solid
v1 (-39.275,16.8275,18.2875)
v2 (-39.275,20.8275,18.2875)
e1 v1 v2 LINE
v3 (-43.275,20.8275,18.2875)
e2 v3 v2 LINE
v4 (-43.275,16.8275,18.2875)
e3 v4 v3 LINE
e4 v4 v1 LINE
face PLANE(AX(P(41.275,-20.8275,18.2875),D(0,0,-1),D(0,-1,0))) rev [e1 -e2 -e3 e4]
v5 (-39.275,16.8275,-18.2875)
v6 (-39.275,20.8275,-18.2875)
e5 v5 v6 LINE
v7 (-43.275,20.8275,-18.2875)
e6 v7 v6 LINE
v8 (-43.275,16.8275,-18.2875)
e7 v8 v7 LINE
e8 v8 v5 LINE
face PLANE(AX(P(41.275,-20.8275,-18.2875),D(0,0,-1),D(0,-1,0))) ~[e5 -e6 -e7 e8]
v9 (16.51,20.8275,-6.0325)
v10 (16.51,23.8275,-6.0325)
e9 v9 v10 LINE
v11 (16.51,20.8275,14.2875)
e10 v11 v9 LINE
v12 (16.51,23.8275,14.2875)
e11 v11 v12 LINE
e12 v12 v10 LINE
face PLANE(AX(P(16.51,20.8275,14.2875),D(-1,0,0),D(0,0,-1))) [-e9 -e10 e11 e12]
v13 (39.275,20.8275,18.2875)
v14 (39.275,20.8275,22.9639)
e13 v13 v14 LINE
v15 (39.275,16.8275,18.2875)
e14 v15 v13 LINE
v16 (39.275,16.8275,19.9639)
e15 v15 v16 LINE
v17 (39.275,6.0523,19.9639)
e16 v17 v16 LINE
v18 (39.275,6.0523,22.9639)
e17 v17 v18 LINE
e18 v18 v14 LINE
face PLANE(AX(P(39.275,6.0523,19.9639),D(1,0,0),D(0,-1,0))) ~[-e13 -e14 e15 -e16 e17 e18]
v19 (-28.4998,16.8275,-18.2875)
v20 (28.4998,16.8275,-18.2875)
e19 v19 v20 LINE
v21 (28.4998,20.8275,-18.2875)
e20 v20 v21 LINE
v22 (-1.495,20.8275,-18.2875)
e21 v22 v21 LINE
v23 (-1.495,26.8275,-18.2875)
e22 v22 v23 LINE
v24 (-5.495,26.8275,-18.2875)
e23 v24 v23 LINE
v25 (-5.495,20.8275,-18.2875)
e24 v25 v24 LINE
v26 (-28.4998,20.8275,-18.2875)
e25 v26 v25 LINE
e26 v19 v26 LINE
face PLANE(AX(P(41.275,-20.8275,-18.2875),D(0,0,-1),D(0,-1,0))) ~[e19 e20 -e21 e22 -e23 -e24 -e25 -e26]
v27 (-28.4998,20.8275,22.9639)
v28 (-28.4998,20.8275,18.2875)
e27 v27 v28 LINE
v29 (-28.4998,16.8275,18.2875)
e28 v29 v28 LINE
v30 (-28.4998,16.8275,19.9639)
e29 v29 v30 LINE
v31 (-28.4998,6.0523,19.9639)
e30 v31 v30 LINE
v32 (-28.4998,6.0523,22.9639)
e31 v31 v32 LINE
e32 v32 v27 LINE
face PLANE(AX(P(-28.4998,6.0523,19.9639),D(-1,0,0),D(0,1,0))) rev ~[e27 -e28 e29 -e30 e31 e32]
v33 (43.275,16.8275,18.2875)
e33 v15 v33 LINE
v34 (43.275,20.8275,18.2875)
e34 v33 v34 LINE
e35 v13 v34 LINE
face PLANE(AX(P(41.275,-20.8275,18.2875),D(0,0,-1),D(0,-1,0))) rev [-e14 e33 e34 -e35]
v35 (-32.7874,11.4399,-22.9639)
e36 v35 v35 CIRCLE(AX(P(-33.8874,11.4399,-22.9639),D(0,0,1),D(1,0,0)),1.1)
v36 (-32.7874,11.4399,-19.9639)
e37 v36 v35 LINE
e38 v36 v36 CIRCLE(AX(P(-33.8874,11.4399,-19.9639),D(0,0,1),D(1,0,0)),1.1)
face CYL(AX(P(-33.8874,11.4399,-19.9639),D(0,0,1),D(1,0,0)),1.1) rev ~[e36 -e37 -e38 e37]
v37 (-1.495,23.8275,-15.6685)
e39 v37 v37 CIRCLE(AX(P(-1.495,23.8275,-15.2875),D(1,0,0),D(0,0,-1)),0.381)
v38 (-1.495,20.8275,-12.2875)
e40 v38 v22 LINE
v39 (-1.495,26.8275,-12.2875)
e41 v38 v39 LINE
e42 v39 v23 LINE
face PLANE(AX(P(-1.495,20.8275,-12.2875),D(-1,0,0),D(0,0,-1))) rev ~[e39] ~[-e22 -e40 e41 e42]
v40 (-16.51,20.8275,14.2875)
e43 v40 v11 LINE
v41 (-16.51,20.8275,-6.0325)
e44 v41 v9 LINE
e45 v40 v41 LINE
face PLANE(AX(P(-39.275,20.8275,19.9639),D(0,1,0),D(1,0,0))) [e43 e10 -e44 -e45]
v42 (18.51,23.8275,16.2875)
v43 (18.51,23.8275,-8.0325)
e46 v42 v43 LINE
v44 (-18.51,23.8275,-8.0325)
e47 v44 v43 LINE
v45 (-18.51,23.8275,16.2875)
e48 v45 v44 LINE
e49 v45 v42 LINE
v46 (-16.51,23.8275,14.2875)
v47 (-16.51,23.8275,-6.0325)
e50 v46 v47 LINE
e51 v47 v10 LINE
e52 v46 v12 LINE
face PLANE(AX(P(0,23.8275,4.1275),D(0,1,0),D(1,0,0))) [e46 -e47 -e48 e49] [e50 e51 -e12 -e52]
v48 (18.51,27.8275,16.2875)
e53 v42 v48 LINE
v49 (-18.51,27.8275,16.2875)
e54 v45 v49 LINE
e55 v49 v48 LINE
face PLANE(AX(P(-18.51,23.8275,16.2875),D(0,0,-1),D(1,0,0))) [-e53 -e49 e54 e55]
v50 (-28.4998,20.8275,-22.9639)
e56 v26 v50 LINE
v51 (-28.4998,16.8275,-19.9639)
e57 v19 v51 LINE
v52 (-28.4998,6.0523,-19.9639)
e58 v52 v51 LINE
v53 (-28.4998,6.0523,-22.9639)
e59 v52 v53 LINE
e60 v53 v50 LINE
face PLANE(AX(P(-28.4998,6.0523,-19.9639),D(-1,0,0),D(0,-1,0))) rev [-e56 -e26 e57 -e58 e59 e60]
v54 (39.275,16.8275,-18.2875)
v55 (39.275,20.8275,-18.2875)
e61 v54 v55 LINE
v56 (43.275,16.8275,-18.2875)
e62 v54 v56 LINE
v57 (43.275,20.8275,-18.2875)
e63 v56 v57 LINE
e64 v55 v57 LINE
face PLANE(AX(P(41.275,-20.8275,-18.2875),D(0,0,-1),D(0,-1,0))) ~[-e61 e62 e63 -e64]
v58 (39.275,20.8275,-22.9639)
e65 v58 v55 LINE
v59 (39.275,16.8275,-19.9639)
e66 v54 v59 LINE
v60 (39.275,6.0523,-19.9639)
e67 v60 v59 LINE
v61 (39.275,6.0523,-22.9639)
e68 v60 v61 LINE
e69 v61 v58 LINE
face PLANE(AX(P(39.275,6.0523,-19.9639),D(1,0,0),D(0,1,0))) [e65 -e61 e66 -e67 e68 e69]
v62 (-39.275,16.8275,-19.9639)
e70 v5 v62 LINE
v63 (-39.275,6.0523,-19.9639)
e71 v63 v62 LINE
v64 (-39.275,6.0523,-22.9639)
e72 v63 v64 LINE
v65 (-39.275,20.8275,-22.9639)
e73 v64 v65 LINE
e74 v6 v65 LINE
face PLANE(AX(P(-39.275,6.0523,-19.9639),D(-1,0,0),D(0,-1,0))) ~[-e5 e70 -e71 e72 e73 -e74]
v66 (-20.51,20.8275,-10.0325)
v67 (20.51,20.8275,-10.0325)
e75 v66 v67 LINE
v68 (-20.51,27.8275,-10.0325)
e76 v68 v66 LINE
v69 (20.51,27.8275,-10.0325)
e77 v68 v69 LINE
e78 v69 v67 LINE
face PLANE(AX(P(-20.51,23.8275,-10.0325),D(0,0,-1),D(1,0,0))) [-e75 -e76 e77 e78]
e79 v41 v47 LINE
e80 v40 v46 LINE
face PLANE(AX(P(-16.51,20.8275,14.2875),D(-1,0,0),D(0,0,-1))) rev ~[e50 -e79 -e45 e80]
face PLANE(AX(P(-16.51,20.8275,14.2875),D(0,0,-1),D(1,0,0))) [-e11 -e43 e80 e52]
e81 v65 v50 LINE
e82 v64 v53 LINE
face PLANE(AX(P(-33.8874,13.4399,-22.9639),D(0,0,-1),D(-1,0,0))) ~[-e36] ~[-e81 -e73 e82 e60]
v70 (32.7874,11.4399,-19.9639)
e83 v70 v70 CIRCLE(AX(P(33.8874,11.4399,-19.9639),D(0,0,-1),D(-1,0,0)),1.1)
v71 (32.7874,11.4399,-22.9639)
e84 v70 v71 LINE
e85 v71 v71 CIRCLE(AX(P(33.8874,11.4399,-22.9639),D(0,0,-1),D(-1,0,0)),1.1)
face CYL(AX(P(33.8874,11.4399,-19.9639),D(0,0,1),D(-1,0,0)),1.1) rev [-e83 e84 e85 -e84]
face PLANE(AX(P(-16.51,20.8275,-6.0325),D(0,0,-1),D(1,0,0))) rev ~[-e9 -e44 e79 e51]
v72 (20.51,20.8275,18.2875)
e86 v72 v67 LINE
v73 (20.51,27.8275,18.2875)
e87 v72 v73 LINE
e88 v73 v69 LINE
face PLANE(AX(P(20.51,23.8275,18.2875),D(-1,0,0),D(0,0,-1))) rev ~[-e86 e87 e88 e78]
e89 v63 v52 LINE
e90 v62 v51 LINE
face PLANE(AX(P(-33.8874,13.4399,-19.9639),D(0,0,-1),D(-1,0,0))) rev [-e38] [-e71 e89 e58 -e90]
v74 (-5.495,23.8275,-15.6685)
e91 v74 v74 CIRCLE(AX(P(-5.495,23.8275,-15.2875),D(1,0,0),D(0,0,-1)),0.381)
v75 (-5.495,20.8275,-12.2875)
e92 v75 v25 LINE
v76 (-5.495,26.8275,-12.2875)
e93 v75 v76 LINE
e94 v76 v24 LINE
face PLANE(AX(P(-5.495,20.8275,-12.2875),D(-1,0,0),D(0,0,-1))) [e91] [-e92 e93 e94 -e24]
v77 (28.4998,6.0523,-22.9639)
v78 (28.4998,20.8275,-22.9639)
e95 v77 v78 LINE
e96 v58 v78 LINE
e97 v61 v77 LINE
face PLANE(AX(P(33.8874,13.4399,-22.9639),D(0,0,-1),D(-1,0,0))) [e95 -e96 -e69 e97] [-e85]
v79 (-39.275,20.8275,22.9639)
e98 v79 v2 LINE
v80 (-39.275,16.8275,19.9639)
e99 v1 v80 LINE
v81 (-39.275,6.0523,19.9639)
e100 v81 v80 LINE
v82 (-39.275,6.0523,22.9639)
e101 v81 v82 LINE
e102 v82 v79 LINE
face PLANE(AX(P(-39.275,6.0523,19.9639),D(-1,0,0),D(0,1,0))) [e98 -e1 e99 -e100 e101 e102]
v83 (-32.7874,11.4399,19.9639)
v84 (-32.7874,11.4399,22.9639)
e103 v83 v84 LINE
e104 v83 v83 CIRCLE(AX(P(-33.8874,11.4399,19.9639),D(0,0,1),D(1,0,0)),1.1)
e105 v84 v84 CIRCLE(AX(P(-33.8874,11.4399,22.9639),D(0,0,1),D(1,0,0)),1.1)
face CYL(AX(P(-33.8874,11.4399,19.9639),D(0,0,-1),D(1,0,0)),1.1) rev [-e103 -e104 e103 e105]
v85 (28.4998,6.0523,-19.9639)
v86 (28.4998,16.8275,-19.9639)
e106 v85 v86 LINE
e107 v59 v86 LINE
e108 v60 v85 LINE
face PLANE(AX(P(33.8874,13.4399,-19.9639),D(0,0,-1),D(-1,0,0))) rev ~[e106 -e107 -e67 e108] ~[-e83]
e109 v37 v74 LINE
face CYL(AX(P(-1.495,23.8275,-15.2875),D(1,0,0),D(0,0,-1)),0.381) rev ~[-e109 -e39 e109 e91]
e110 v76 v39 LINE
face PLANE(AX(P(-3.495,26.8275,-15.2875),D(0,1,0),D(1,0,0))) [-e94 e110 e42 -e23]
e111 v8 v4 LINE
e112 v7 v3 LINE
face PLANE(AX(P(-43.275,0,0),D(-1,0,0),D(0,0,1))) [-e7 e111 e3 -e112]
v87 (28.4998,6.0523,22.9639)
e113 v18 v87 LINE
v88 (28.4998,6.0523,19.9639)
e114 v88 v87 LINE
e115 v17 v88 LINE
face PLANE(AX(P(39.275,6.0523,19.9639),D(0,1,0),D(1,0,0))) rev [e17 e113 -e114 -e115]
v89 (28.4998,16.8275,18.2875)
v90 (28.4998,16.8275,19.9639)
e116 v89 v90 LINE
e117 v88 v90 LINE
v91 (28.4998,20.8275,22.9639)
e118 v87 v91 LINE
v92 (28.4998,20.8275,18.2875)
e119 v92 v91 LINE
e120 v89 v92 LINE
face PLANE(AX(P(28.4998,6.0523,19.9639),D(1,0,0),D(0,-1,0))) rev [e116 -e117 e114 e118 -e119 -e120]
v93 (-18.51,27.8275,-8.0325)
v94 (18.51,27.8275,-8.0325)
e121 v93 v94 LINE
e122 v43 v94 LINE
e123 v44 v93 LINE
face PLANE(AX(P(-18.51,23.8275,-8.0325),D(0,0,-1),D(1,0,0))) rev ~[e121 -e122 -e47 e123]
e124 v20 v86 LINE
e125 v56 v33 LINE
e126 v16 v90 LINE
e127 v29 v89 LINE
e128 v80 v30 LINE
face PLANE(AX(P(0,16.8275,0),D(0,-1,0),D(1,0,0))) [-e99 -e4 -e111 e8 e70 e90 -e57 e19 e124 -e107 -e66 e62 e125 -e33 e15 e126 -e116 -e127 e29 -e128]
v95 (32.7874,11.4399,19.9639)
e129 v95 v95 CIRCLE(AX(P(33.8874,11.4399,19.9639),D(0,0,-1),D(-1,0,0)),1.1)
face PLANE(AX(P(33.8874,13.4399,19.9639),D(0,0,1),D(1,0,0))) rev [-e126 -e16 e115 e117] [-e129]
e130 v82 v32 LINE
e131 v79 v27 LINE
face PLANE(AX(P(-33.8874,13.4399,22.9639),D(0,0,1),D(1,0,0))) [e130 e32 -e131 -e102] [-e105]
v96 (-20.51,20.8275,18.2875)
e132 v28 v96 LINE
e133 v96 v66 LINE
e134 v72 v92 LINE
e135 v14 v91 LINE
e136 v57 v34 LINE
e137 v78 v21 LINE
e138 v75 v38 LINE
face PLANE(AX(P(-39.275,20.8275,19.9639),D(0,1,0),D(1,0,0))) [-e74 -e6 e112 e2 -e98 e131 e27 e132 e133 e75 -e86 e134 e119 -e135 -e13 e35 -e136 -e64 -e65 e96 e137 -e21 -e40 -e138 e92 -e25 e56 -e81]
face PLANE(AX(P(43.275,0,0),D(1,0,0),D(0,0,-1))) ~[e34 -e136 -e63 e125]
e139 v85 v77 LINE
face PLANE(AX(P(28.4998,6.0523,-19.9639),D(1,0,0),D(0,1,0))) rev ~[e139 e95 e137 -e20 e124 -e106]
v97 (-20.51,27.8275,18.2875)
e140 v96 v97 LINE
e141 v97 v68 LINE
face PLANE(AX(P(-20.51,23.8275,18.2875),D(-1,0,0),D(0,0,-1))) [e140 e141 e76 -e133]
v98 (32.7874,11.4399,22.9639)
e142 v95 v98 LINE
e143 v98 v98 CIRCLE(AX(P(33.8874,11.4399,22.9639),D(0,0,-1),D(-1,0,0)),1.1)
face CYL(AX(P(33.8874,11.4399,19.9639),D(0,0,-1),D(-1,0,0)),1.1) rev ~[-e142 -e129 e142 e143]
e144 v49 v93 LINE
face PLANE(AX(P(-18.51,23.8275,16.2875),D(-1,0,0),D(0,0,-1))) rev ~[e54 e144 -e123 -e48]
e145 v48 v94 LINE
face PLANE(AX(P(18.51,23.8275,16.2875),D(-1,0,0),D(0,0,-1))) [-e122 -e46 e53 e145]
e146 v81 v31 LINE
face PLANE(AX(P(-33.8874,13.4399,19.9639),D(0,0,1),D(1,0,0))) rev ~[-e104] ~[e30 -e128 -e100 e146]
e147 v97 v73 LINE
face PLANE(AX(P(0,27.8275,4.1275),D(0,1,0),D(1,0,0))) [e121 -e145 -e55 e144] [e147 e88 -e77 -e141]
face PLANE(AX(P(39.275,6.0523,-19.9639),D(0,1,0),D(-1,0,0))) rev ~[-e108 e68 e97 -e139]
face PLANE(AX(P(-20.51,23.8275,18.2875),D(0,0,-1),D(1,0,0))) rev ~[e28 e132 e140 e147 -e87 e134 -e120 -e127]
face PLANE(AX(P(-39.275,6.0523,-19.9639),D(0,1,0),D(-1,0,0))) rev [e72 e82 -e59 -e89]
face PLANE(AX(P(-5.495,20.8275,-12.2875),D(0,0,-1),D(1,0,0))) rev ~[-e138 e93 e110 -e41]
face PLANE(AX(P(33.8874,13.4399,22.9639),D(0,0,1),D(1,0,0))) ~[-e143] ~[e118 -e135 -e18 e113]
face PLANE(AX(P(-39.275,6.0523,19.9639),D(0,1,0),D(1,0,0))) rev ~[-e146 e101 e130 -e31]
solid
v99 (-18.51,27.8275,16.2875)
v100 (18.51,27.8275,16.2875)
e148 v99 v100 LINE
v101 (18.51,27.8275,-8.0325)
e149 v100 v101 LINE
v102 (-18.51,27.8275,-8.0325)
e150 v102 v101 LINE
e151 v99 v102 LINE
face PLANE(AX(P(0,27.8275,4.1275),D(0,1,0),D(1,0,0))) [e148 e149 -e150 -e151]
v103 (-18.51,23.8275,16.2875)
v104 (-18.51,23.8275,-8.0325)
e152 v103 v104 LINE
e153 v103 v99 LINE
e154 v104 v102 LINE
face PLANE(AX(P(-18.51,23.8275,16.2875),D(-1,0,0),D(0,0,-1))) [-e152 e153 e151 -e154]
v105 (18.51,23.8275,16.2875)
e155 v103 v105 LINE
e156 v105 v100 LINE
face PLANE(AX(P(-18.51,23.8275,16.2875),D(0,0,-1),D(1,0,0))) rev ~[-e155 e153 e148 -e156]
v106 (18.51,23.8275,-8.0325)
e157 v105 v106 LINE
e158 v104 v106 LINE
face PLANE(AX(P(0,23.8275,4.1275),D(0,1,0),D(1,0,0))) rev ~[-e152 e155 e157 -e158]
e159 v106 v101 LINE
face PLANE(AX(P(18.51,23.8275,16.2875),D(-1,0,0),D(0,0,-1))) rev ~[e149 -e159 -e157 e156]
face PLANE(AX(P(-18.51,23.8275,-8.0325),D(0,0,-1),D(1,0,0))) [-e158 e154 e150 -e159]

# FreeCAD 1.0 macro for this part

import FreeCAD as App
import Part
import Sketcher

V = App.Vector
Q = App.Units.Quantity

doc = App.newDocument("Part")
body = doc.addObject("PartDesign::Body", "Body")

# Sketch on YZ plane
sketch1 = body.newObject("Sketcher::SketchObject", "Sketch")
sketch1.AttachmentSupport = (doc.getObject("YZ_Plane"), [""])
sketch1.MapMode = "FlatFace"
sketch1.addGeometry(Part.LineSegment(V(20.8275, 18.2875, 0), V(-20.8275, 18.2875, 0)), False)
sketch1.addGeometry(Part.LineSegment(V(-20.8275, 18.2875, 0), V(-20.8275, -18.2875, 0)), False)
sketch1.addGeometry(Part.LineSegment(V(-20.8275, -18.2875, 0), V(20.8275, -18.2875, 0)), False)
sketch1.addGeometry(Part.LineSegment(V(20.8275, -18.2875, 0), V(20.8275, 18.2875, 0)), False)
sketch1.addGeometry(Part.LineSegment(V(-16.8275, -14.2875, 0), V(-16.8275, 14.2875, 0)), False)
sketch1.addGeometry(Part.LineSegment(V(-16.8275, 14.2875, 0), V(16.8275, 14.2875, 0)), False)
sketch1.addGeometry(Part.LineSegment(V(16.8275, 14.2875, 0), V(16.8275, -14.2875, 0)), False)
sketch1.addGeometry(Part.LineSegment(V(16.8275, -14.2875, 0), V(-16.8275, -14.2875, 0)), False)
sketch1.addConstraint(Sketcher.Constraint("Coincident", 0, 2, 1, 1))
sketch1.addConstraint(Sketcher.Constraint("Coincident", 1, 2, 2, 1))
sketch1.addConstraint(Sketcher.Constraint("Coincident", 2, 2, 3, 1))
sketch1.addConstraint(Sketcher.Constraint("Coincident", 3, 2, 0, 1))
sketch1.addConstraint(Sketcher.Constraint("Coincident", 4, 2, 5, 1))
sketch1.addConstraint(Sketcher.Constraint("Coincident", 5, 2, 6, 1))
sketch1.addConstraint(Sketcher.Constraint("Coincident", 6, 2, 7, 1))
sketch1.addConstraint(Sketcher.Constraint("Coincident", 7, 2, 4, 1))
sketch1.addConstraint(Sketcher.Constraint("Horizontal", 0))
sketch1.addConstraint(Sketcher.Constraint("Vertical", 1))
sketch1.addConstraint(Sketcher.Constraint("Horizontal", 2))
sketch1.addConstraint(Sketcher.Constraint("Vertical", 3))
sketch1.addConstraint(Sketcher.Constraint("Vertical", 4))
sketch1.addConstraint(Sketcher.Constraint("Horizontal", 5))
sketch1.addConstraint(Sketcher.Constraint("Vertical", 6))
sketch1.addConstraint(Sketcher.Constraint("Horizontal", 7))
sketch1.addConstraint(Sketcher.Constraint("Symmetric", 0, 2, 2, 2, -1, 1))
sketch1.addConstraint(Sketcher.Constraint("Symmetric", 4, 2, 6, 2, -1, 1))
sketch1.addConstraint(Sketcher.Constraint("DistanceX", 5, 1, 5, 2, Q("1.325 in")))
sketch1.addConstraint(Sketcher.Constraint("DistanceY", 4, 1, 4, 2, Q("1.125 in")))
sketch1.addConstraint(Sketcher.Constraint("DistanceX", 0, 2, 0, 1, Q("41.655 mm")))
sketch1.addConstraint(Sketcher.Constraint("DistanceY", 1, 2, 1, 1, Q("36.575 mm")))
pad1 = body.newObject("PartDesign::Pad", "Pad")
pad1.Profile = sketch1
pad1.Length = Q("3.25 in")
pad1.Midplane = True

# Sketch on YZ plane
sketch2 = body.newObject("Sketcher::SketchObject", "Sketch001")
sketch2.AttachmentSupport = (doc.getObject("YZ_Plane"), [""])
sketch2.MapMode = "FlatFace"
sketch2.AttachmentOffset = App.Placement(V(0, 0, -1.625 * 25.4), App.Rotation())
sketch2.addGeometry(Part.LineSegment(V(20.8275, -18.2875, 0), V(-20.8275, -18.2875, 0)), False)
sketch2.addGeometry(Part.LineSegment(V(-20.8275, -18.2875, 0), V(-20.8275, 18.2875, 0)), False)
sketch2.addGeometry(Part.LineSegment(V(-20.8275, 18.2875, 0), V(20.8275, 18.2875, 0)), False)
sketch2.addGeometry(Part.LineSegment(V(20.8275, 18.2875, 0), V(20.8275, -18.2875, 0)), False)
sketch2.addConstraint(Sketcher.Constraint("Coincident", 0, 2, 1, 1))
sketch2.addConstraint(Sketcher.Constraint("Coincident", 1, 2, 2, 1))
sketch2.addConstraint(Sketcher.Constraint("Coincident", 2, 2, 3, 1))
sketch2.addConstraint(Sketcher.Constraint("Coincident", 3, 2, 0, 1))
sketch2.addConstraint(Sketcher.Constraint("Horizontal", 0))
sketch2.addConstraint(Sketcher.Constraint("Vertical", 1))
sketch2.addConstraint(Sketcher.Constraint("Horizontal", 2))
sketch2.addConstraint(Sketcher.Constraint("Vertical", 3))
sketch2.addConstraint(Sketcher.Constraint("Symmetric", 0, 2, 2, 2, -1, 1))
sketch2.addConstraint(Sketcher.Constraint("DistanceX", 0, 2, 0, 1, Q("41.655 mm")))
sketch2.addConstraint(Sketcher.Constraint("DistanceY", 1, 1, 1, 2, Q("36.575 mm")))
pad2 = body.newObject("PartDesign::Pad", "Pad001")
pad2.Profile = sketch2
pad2.Length = 2
pad2.Reversed = True
doc.recompute()

mirrored = body.newObject("PartDesign::Mirrored", "Mirrored")
mirrored.Originals = [pad2]
mirrored.MirrorPlane = (doc.getObject("YZ_Plane"), [""])
body.Tip = mirrored

# Sketch on XZ plane
sketch3 = body.newObject("Sketcher::SketchObject", "Sketch002")
sketch3.AttachmentSupport = (doc.getObject("XZ_Plane"), [""])
sketch3.MapMode = "FlatFace"
sketch3.AttachmentOffset = App.Placement(V(0, 0, 20.8275), App.Rotation())
sketch3.addGeometry(Part.LineSegment(V(-43.275, 18.2875, 0), V(-43.275, -18.2875, 0)), False)
sketch3.addGeometry(Part.LineSegment(V(-43.275, -18.2875, 0), V(43.275, -18.2875, 0)), False)
sketch3.addGeometry(Part.LineSegment(V(43.275, -18.2875, 0), V(43.275, 18.2875, 0)), False)
sketch3.addGeometry(Part.LineSegment(V(43.275, 18.2875, 0), V(-43.275, 18.2875, 0)), False)
sketch3.addConstraint(Sketcher.Constraint("Coincident", 0, 2, 1, 1))
sketch3.addConstraint(Sketcher.Constraint("Coincident", 1, 2, 2, 1))
sketch3.addConstraint(Sketcher.Constraint("Coincident", 2, 2, 3, 1))
sketch3.addConstraint(Sketcher.Constraint("Coincident", 3, 2, 0, 1))
sketch3.addConstraint(Sketcher.Constraint("Vertical", 0))
sketch3.addConstraint(Sketcher.Constraint("Horizontal", 1))
sketch3.addConstraint(Sketcher.Constraint("Vertical", 2))
sketch3.addConstraint(Sketcher.Constraint("Horizontal", 3))
sketch3.addConstraint(Sketcher.Constraint("Symmetric", 0, 2, 2, 2, -1, 1))
sketch3.addConstraint(Sketcher.Constraint("DistanceX", 1, 1, 1, 2, Q("86.55 mm")))
sketch3.addConstraint(Sketcher.Constraint("DistanceY", 0, 2, 0, 1, Q("36.575 mm")))
pocket1 = body.newObject("PartDesign::Pocket", "Pocket")
pocket1.Profile = sketch3
pocket1.Length = 37.655

# Sketch on XY plane
sketch4 = body.newObject("Sketcher::SketchObject", "Sketch003")
sketch4.AttachmentSupport = (doc.getObject("XY_Plane"), [""])
sketch4.MapMode = "FlatFace"
sketch4.AttachmentOffset = App.Placement(V(0, 0, -18.2875), App.Rotation())
sketch4.addGeometry(Part.LineSegment(V(39.275, 20.8275, 0), V(39.275, 16.8275, 0)), False)
sketch4.addGeometry(Part.LineSegment(V(39.275, 16.8275, 0), V(28.4998, 16.8275, 0)), False)
sketch4.addGeometry(Part.LineSegment(V(28.4998, 16.8275, 0), V(28.4998, 20.8275, 0)), False)
sketch4.addGeometry(Part.LineSegment(V(28.4998, 20.8275, 0), V(39.275, 20.8275, 0)), False)
sketch4.addConstraint(Sketcher.Constraint("Coincident", 0, 2, 1, 1))
sketch4.addConstraint(Sketcher.Constraint("Coincident", 1, 2, 2, 1))
sketch4.addConstraint(Sketcher.Constraint("Coincident", 2, 2, 3, 1))
sketch4.addConstraint(Sketcher.Constraint("Coincident", 3, 2, 0, 1))
sketch4.addConstraint(Sketcher.Constraint("Vertical", 0))
sketch4.addConstraint(Sketcher.Constraint("Horizontal", 1))
sketch4.addConstraint(Sketcher.Constraint("Vertical", 2))
sketch4.addConstraint(Sketcher.Constraint("Horizontal", 3))
sketch4.addConstraint(Sketcher.Constraint("DistanceX", 1, 2, 1, 1, Q("10.7752 mm")))
sketch4.addConstraint(Sketcher.Constraint("DistanceY", 0, 2, 0, 1, Q("4 mm")))
sketch4.addConstraint(Sketcher.Constraint("DistanceY", -1, 1, 0, 2, Q("0.6625 in")))
sketch4.addConstraint(Sketcher.Constraint("DistanceX", -1, 1, 0, 2, Q("39.275 mm")))
pad3 = body.newObject("PartDesign::Pad", "Pad002")
pad3.Profile = sketch4
pad3.Length = Q("0.066 in")
pad3.Reversed = True

# Sketch on XY plane
sketch5 = body.newObject("Sketcher::SketchObject", "Sketch004")
sketch5.AttachmentSupport = (doc.getObject("XY_Plane"), [""])
sketch5.MapMode = "FlatFace"
sketch5.AttachmentOffset = App.Placement(V(0, 0, -19.9639), App.Rotation())
sketch5.addGeometry(Part.LineSegment(V(39.275, 20.8275, 0), V(39.275, 6.0523, 0)), False)
sketch5.addGeometry(Part.LineSegment(V(39.275, 6.0523, 0), V(28.4998, 6.0523, 0)), False)
sketch5.addGeometry(Part.LineSegment(V(28.4998, 6.0523, 0), V(28.4998, 20.8275, 0)), False)
sketch5.addGeometry(Part.LineSegment(V(28.4998, 20.8275, 0), V(39.275, 20.8275, 0)), False)
sketch5.addGeometry(Part.Circle(V(33.8874, 11.4399, 0), V(0, 0, 1), 1.1), False)
sketch5.addConstraint(Sketcher.Constraint("Coincident", 0, 2, 1, 1))
sketch5.addConstraint(Sketcher.Constraint("Coincident", 1, 2, 2, 1))
sketch5.addConstraint(Sketcher.Constraint("Coincident", 2, 2, 3, 1))
sketch5.addConstraint(Sketcher.Constraint("Coincident", 3, 2, 0, 1))
sketch5.addConstraint(Sketcher.Constraint("Vertical", 0))
sketch5.addConstraint(Sketcher.Constraint("Horizontal", 1))
sketch5.addConstraint(Sketcher.Constraint("Vertical", 2))
sketch5.addConstraint(Sketcher.Constraint("Horizontal", 3))
sketch5.addConstraint(Sketcher.Constraint("Diameter", 4, Q("2.2 mm")))
sketch5.addConstraint(Sketcher.Constraint("DistanceX", 1, 2, 1, 1, Q("10.7752 mm")))
sketch5.addConstraint(Sketcher.Constraint("DistanceY", 0, 2, 0, 1, Q("14.7752 mm")))
sketch5.addConstraint(Sketcher.Constraint("DistanceX", -1, 1, 4, 3, Q("33.8874 mm")))
sketch5.addConstraint(Sketcher.Constraint("DistanceY", -1, 1, 4, 3, Q("11.4399 mm")))
sketch5.addConstraint(Sketcher.Constraint("DistanceX", -1, 1, 0, 2, Q("39.275 mm")))
sketch5.addConstraint(Sketcher.Constraint("DistanceY", -1, 1, 0, 2, Q("6.0523 mm")))
pad4 = body.newObject("PartDesign::Pad", "Pad003")
pad4.Profile = sketch5
pad4.Length = 3
pad4.Reversed = True
doc.recompute()

mirrored2 = body.newObject("PartDesign::Mirrored", "Mirrored001")
mirrored2.Originals = [pad3, pad4]
mirrored2.MirrorPlane = (doc.getObject("YZ_Plane"), [""])
body.Tip = mirrored2
doc.recompute()

mirrored3 = body.newObject("PartDesign::Mirrored", "Mirrored002")
mirrored3.Originals = [pad3, pad4]
mirrored3.MirrorPlane = (doc.getObject("XY_Plane"), [""])
body.Tip = mirrored3

# Sketch on XY plane
sketch6 = body.newObject("Sketcher::SketchObject", "Sketch005")
sketch6.AttachmentSupport = (doc.getObject("XY_Plane"), [""])
sketch6.MapMode = "FlatFace"
sketch6.AttachmentOffset = App.Placement(V(0, 0, 18.2875), App.Rotation())
sketch6.addGeometry(Part.LineSegment(V(-39.275, 20.8275, 0), V(-39.275, 16.8275, 0)), False)
sketch6.addGeometry(Part.LineSegment(V(-39.275, 16.8275, 0), V(-28.4998, 16.8275, 0)), False)
sketch6.addGeometry(Part.LineSegment(V(-28.4998, 16.8275, 0), V(-28.4998, 20.8275, 0)), False)
sketch6.addGeometry(Part.LineSegment(V(-28.4998, 20.8275, 0), V(-39.275, 20.8275, 0)), False)
sketch6.addConstraint(Sketcher.Constraint("Coincident", 0, 2, 1, 1))
sketch6.addConstraint(Sketcher.Constraint("Coincident", 1, 2, 2, 1))
sketch6.addConstraint(Sketcher.Constraint("Coincident", 2, 2, 3, 1))
sketch6.addConstraint(Sketcher.Constraint("Coincident", 3, 2, 0, 1))
sketch6.addConstraint(Sketcher.Constraint("Vertical", 0))
sketch6.addConstraint(Sketcher.Constraint("Horizontal", 1))
sketch6.addConstraint(Sketcher.Constraint("Vertical", 2))
sketch6.addConstraint(Sketcher.Constraint("Horizontal", 3))
sketch6.addConstraint(Sketcher.Constraint("DistanceX", 1, 1, 1, 2, Q("10.7752 mm")))
sketch6.addConstraint(Sketcher.Constraint("DistanceY", 0, 2, 0, 1, Q("4 mm")))
sketch6.addConstraint(Sketcher.Constraint("DistanceY", -1, 1, 0, 2, Q("0.6625 in")))
sketch6.addConstraint(Sketcher.Constraint("DistanceX", 0, 2, -1, 1, Q("39.275 mm")))
pad5 = body.newObject("PartDesign::Pad", "Pad004")
pad5.Profile = sketch6
pad5.Length = Q("0.066 in")

# Sketch on XY plane
sketch7 = body.newObject("Sketcher::SketchObject", "Sketch006")
sketch7.AttachmentSupport = (doc.getObject("XY_Plane"), [""])
sketch7.MapMode = "FlatFace"
sketch7.AttachmentOffset = App.Placement(V(0, 0, 19.9639), App.Rotation())
sketch7.addGeometry(Part.LineSegment(V(-39.275, 20.8275, 0), V(-39.275, 6.0523, 0)), False)
sketch7.addGeometry(Part.LineSegment(V(-39.275, 6.0523, 0), V(-28.4998, 6.0523, 0)), False)
sketch7.addGeometry(Part.LineSegment(V(-28.4998, 6.0523, 0), V(-28.4998, 20.8275, 0)), False)
sketch7.addGeometry(Part.LineSegment(V(-28.4998, 20.8275, 0), V(-39.275, 20.8275, 0)), False)
sketch7.addGeometry(Part.Circle(V(-33.8874, 11.4399, 0), V(0, 0, 1), 1.1), False)
sketch7.addConstraint(Sketcher.Constraint("Coincident", 0, 2, 1, 1))
sketch7.addConstraint(Sketcher.Constraint("Coincident", 1, 2, 2, 1))
sketch7.addConstraint(Sketcher.Constraint("Coincident", 2, 2, 3, 1))
sketch7.addConstraint(Sketcher.Constraint("Coincident", 3, 2, 0, 1))
sketch7.addConstraint(Sketcher.Constraint("Vertical", 0))
sketch7.addConstraint(Sketcher.Constraint("Horizontal", 1))
sketch7.addConstraint(Sketcher.Constraint("Vertical", 2))
sketch7.addConstraint(Sketcher.Constraint("Horizontal", 3))
sketch7.addConstraint(Sketcher.Constraint("Diameter", 4, Q("2.2 mm")))
sketch7.addConstraint(Sketcher.Constraint("DistanceX", 1, 1, 1, 2, Q("10.7752 mm")))
sketch7.addConstraint(Sketcher.Constraint("DistanceY", 0, 2, 0, 1, Q("14.7752 mm")))
sketch7.addConstraint(Sketcher.Constraint("DistanceX", 4, 3, -1, 1, Q("33.8874 mm")))
sketch7.addConstraint(Sketcher.Constraint("DistanceY", -1, 1, 4, 3, Q("11.4399 mm")))
sketch7.addConstraint(Sketcher.Constraint("DistanceX", 0, 2, -1, 1, Q("39.275 mm")))
sketch7.addConstraint(Sketcher.Constraint("DistanceY", -1, 1, 0, 2, Q("6.0523 mm")))
pad6 = body.newObject("PartDesign::Pad", "Pad005")
pad6.Profile = sketch7
pad6.Length = 3

# Sketch on XZ plane
sketch8 = body.newObject("Sketcher::SketchObject", "Sketch007")
sketch8.AttachmentSupport = (doc.getObject("XZ_Plane"), [""])
sketch8.MapMode = "FlatFace"
sketch8.AttachmentOffset = App.Placement(V(0, 0, -20.8275), App.Rotation())
sketch8.addGeometry(Part.LineSegment(V(-5.495, -18.2875, 0), V(-5.495, -12.2875, 0)), False)
sketch8.addGeometry(Part.LineSegment(V(-5.495, -12.2875, 0), V(-1.495, -12.2875, 0)), False)
sketch8.addGeometry(Part.LineSegment(V(-1.495, -12.2875, 0), V(-1.495, -18.2875, 0)), False)
sketch8.addGeometry(Part.LineSegment(V(-1.495, -18.2875, 0), V(-5.495, -18.2875, 0)), False)
sketch8.addConstraint(Sketcher.Constraint("Coincident", 0, 2, 1, 1))
sketch8.addConstraint(Sketcher.Constraint("Coincident", 1, 2, 2, 1))
sketch8.addConstraint(Sketcher.Constraint("Coincident", 2, 2, 3, 1))
sketch8.addConstraint(Sketcher.Constraint("Coincident", 3, 2, 0, 1))
sketch8.addConstraint(Sketcher.Constraint("Vertical", 0))
sketch8.addConstraint(Sketcher.Constraint("Horizontal", 1))
sketch8.addConstraint(Sketcher.Constraint("Vertical", 2))
sketch8.addConstraint(Sketcher.Constraint("Horizontal", 3))
sketch8.addConstraint(Sketcher.Constraint("DistanceX", 1, 1, 1, 2, Q("4 mm")))
sketch8.addConstraint(Sketcher.Constraint("DistanceY", 0, 1, 0, 2, Q("6 mm")))
sketch8.addConstraint(Sketcher.Constraint("DistanceX", 0, 2, -1, 1, Q("5.495 mm")))
sketch8.addConstraint(Sketcher.Constraint("DistanceY", 0, 2, -1, 1, Q("12.2875 mm")))
pad7 = body.newObject("PartDesign::Pad", "Pad006")
pad7.Profile = sketch8
pad7.Length = 6
pad7.Reversed = True

# Sketch on YZ plane
sketch9 = body.newObject("Sketcher::SketchObject", "Sketch008")
sketch9.AttachmentSupport = (doc.getObject("YZ_Plane"), [""])
sketch9.MapMode = "FlatFace"
sketch9.AttachmentOffset = App.Placement(V(0, 0, -1.495), App.Rotation())
sketch9.addGeometry(Part.Circle(V(23.8275, -15.2875, 0), V(0, 0, 1), 0.381), False)
sketch9.addConstraint(Sketcher.Constraint("Diameter", 0, Q("0.03 in")))
sketch9.addConstraint(Sketcher.Constraint("DistanceX", -1, 1, 0, 3, Q("23.8275 mm")))
sketch9.addConstraint(Sketcher.Constraint("DistanceY", 0, 3, -1, 1, Q("15.2875 mm")))
pocket2 = body.newObject("PartDesign::Pocket", "Pocket001")
pocket2.Profile = sketch9
pocket2.Type = "ThroughAll"

# Sketch on XZ plane
sketch10 = body.newObject("Sketcher::SketchObject", "Sketch009")
sketch10.AttachmentSupport = (doc.getObject("XZ_Plane"), [""])
sketch10.MapMode = "FlatFace"
sketch10.AttachmentOffset = App.Placement(V(0, 0, -20.8275), App.Rotation())
sketch10.addGeometry(Part.LineSegment(V(-20.51, -10.0325, 0), V(-20.51, 18.2875, 0)), False)
sketch10.addGeometry(Part.LineSegment(V(-20.51, 18.2875, 0), V(20.51, 18.2875, 0)), False)
sketch10.addGeometry(Part.LineSegment(V(20.51, 18.2875, 0), V(20.51, -10.0325, 0)), False)
sketch10.addGeometry(Part.LineSegment(V(20.51, -10.0325, 0), V(-20.51, -10.0325, 0)), False)
sketch10.addGeometry(Part.LineSegment(V(16.51, 14.2875, 0), V(-16.51, 14.2875, 0)), False)
sketch10.addGeometry(Part.LineSegment(V(-16.51, 14.2875, 0), V(-16.51, -6.0325, 0)), False)
sketch10.addGeometry(Part.LineSegment(V(-16.51, -6.0325, 0), V(16.51, -6.0325, 0)), False)
sketch10.addGeometry(Part.LineSegment(V(16.51, -6.0325, 0), V(16.51, 14.2875, 0)), False)
sketch10.addConstraint(Sketcher.Constraint("Coincident", 0, 2, 1, 1))
sketch10.addConstraint(Sketcher.Constraint("Coincident", 1, 2, 2, 1))
sketch10.addConstraint(Sketcher.Constraint("Coincident", 2, 2, 3, 1))
sketch10.addConstraint(Sketcher.Constraint("Coincident", 3, 2, 0, 1))
sketch10.addConstraint(Sketcher.Constraint("Coincident", 4, 2, 5, 1))
sketch10.addConstraint(Sketcher.Constraint("Coincident", 5, 2, 6, 1))
sketch10.addConstraint(Sketcher.Constraint("Coincident", 6, 2, 7, 1))
sketch10.addConstraint(Sketcher.Constraint("Coincident", 7, 2, 4, 1))
sketch10.addConstraint(Sketcher.Constraint("Vertical", 0))
sketch10.addConstraint(Sketcher.Constraint("Horizontal", 1))
sketch10.addConstraint(Sketcher.Constraint("Vertical", 2))
sketch10.addConstraint(Sketcher.Constraint("Horizontal", 3))
sketch10.addConstraint(Sketcher.Constraint("Horizontal", 4))
sketch10.addConstraint(Sketcher.Constraint("Vertical", 5))
sketch10.addConstraint(Sketcher.Constraint("Horizontal", 6))
sketch10.addConstraint(Sketcher.Constraint("Vertical", 7))
sketch10.addConstraint(Sketcher.Constraint("DistanceX", 4, 2, 4, 1, Q("1.3 in")))
sketch10.addConstraint(Sketcher.Constraint("DistanceY", 5, 2, 5, 1, Q("0.8 in")))
sketch10.addConstraint(Sketcher.Constraint("DistanceX", 4, 2, -1, 1, Q("0.65 in")))
sketch10.addConstraint(Sketcher.Constraint("DistanceY", -1, 1, 4, 2, Q("0.5625 in")))
sketch10.addConstraint(Sketcher.Constraint("DistanceX", 1, 1, 1, 2, Q("41.02 mm")))
sketch10.addConstraint(Sketcher.Constraint("DistanceY", 0, 1, 0, 2, Q("28.32 mm")))
sketch10.addConstraint(Sketcher.Constraint("DistanceX", 0, 2, -1, 1, Q("20.51 mm")))
sketch10.addConstraint(Sketcher.Constraint("DistanceY", -1, 1, 0, 2, Q("18.2875 mm")))
pad8 = body.newObject("PartDesign::Pad", "Pad007")
pad8.Profile = sketch10
pad8.Length = 3
pad8.Reversed = True

# Sketch on XZ plane
sketch11 = body.newObject("Sketcher::SketchObject", "Sketch010")
sketch11.AttachmentSupport = (doc.getObject("XZ_Plane"), [""])
sketch11.MapMode = "FlatFace"
sketch11.AttachmentOffset = App.Placement(V(0, 0, -23.8275), App.Rotation())
sketch11.addGeometry(Part.LineSegment(V(-20.51, -10.0325, 0), V(-20.51, 18.2875, 0)), False)
sketch11.addGeometry(Part.LineSegment(V(-20.51, 18.2875, 0), V(20.51, 18.2875, 0)), False)
sketch11.addGeometry(Part.LineSegment(V(20.51, 18.2875, 0), V(20.51, -10.0325, 0)), False)
sketch11.addGeometry(Part.LineSegment(V(20.51, -10.0325, 0), V(-20.51, -10.0325, 0)), False)
sketch11.addGeometry(Part.LineSegment(V(18.51, 16.2875, 0), V(-18.51, 16.2875, 0)), False)
sketch11.addGeometry(Part.LineSegment(V(-18.51, 16.2875, 0), V(-18.51, -8.0325, 0)), False)
sketch11.addGeometry(Part.LineSegment(V(-18.51, -8.0325, 0), V(18.51, -8.0325, 0)), False)
sketch11.addGeometry(Part.LineSegment(V(18.51, -8.0325, 0), V(18.51, 16.2875, 0)), False)
sketch11.addConstraint(Sketcher.Constraint("Coincident", 0, 2, 1, 1))
sketch11.addConstraint(Sketcher.Constraint("Coincident", 1, 2, 2, 1))
sketch11.addConstraint(Sketcher.Constraint("Coincident", 2, 2, 3, 1))
sketch11.addConstraint(Sketcher.Constraint("Coincident", 3, 2, 0, 1))
sketch11.addConstraint(Sketcher.Constraint("Coincident", 4, 2, 5, 1))
sketch11.addConstraint(Sketcher.Constraint("Coincident", 5, 2, 6, 1))
sketch11.addConstraint(Sketcher.Constraint("Coincident", 6, 2, 7, 1))
sketch11.addConstraint(Sketcher.Constraint("Coincident", 7, 2, 4, 1))
sketch11.addConstraint(Sketcher.Constraint("Vertical", 0))
sketch11.addConstraint(Sketcher.Constraint("Horizontal", 1))
sketch11.addConstraint(Sketcher.Constraint("Vertical", 2))
sketch11.addConstraint(Sketcher.Constraint("Horizontal", 3))
sketch11.addConstraint(Sketcher.Constraint("Horizontal", 4))
sketch11.addConstraint(Sketcher.Constraint("Vertical", 5))
sketch11.addConstraint(Sketcher.Constraint("Horizontal", 6))
sketch11.addConstraint(Sketcher.Constraint("Vertical", 7))
sketch11.addConstraint(Sketcher.Constraint("DistanceX", 1, 1, 1, 2, Q("41.02 mm")))
sketch11.addConstraint(Sketcher.Constraint("DistanceX", 4, 2, 4, 1, Q("37.02 mm")))
sketch11.addConstraint(Sketcher.Constraint("DistanceY", 0, 1, 0, 2, Q("28.32 mm")))
sketch11.addConstraint(Sketcher.Constraint("DistanceY", 5, 2, 5, 1, Q("24.32 mm")))
sketch11.addConstraint(Sketcher.Constraint("DistanceX", 0, 2, -1, 1, Q("20.51 mm")))
sketch11.addConstraint(Sketcher.Constraint("DistanceY", -1, 1, 0, 2, Q("18.2875 mm")))
sketch11.addConstraint(Sketcher.Constraint("DistanceX", 4, 2, -1, 1, Q("18.51 mm")))
sketch11.addConstraint(Sketcher.Constraint("DistanceY", -1, 1, 4, 2, Q("16.2875 mm")))
pad9 = body.newObject("PartDesign::Pad", "Pad008")
pad9.Profile = sketch11
pad9.Length = 4
pad9.Reversed = True
body2 = doc.addObject("PartDesign::Body", "Body001")

# Sketch on XZ plane
sketch12 = body2.newObject("Sketcher::SketchObject", "Sketch011")
sketch12.AttachmentSupport = (doc.getObject("XZ_Plane001"), [""])
sketch12.MapMode = "FlatFace"
sketch12.AttachmentOffset = App.Placement(V(0, 0, -23.8275), App.Rotation())
sketch12.addGeometry(Part.LineSegment(V(-18.51, -8.0325, 0), V(-18.51, 16.2875, 0)), False)
sketch12.addGeometry(Part.LineSegment(V(-18.51, 16.2875, 0), V(18.51, 16.2875, 0)), False)
sketch12.addGeometry(Part.LineSegment(V(18.51, 16.2875, 0), V(18.51, -8.0325, 0)), False)
sketch12.addGeometry(Part.LineSegment(V(18.51, -8.0325, 0), V(-18.51, -8.0325, 0)), False)
sketch12.addConstraint(Sketcher.Constraint("Coincident", 0, 2, 1, 1))
sketch12.addConstraint(Sketcher.Constraint("Coincident", 1, 2, 2, 1))
sketch12.addConstraint(Sketcher.Constraint("Coincident", 2, 2, 3, 1))
sketch12.addConstraint(Sketcher.Constraint("Coincident", 3, 2, 0, 1))
sketch12.addConstraint(Sketcher.Constraint("Vertical", 0))
sketch12.addConstraint(Sketcher.Constraint("Horizontal", 1))
sketch12.addConstraint(Sketcher.Constraint("Vertical", 2))
sketch12.addConstraint(Sketcher.Constraint("Horizontal", 3))
sketch12.addConstraint(Sketcher.Constraint("DistanceX", 1, 1, 1, 2, Q("37.02 mm")))
sketch12.addConstraint(Sketcher.Constraint("DistanceY", 0, 1, 0, 2, Q("24.32 mm")))
sketch12.addConstraint(Sketcher.Constraint("DistanceX", 0, 2, -1, 1, Q("18.51 mm")))
sketch12.addConstraint(Sketcher.Constraint("DistanceY", -1, 1, 0, 2, Q("16.2875 mm")))
pad10 = body2.newObject("PartDesign::Pad", "Pad009")
pad10.Profile = sketch12
pad10.Length = 4
pad10.Reversed = True

doc.recompute()
